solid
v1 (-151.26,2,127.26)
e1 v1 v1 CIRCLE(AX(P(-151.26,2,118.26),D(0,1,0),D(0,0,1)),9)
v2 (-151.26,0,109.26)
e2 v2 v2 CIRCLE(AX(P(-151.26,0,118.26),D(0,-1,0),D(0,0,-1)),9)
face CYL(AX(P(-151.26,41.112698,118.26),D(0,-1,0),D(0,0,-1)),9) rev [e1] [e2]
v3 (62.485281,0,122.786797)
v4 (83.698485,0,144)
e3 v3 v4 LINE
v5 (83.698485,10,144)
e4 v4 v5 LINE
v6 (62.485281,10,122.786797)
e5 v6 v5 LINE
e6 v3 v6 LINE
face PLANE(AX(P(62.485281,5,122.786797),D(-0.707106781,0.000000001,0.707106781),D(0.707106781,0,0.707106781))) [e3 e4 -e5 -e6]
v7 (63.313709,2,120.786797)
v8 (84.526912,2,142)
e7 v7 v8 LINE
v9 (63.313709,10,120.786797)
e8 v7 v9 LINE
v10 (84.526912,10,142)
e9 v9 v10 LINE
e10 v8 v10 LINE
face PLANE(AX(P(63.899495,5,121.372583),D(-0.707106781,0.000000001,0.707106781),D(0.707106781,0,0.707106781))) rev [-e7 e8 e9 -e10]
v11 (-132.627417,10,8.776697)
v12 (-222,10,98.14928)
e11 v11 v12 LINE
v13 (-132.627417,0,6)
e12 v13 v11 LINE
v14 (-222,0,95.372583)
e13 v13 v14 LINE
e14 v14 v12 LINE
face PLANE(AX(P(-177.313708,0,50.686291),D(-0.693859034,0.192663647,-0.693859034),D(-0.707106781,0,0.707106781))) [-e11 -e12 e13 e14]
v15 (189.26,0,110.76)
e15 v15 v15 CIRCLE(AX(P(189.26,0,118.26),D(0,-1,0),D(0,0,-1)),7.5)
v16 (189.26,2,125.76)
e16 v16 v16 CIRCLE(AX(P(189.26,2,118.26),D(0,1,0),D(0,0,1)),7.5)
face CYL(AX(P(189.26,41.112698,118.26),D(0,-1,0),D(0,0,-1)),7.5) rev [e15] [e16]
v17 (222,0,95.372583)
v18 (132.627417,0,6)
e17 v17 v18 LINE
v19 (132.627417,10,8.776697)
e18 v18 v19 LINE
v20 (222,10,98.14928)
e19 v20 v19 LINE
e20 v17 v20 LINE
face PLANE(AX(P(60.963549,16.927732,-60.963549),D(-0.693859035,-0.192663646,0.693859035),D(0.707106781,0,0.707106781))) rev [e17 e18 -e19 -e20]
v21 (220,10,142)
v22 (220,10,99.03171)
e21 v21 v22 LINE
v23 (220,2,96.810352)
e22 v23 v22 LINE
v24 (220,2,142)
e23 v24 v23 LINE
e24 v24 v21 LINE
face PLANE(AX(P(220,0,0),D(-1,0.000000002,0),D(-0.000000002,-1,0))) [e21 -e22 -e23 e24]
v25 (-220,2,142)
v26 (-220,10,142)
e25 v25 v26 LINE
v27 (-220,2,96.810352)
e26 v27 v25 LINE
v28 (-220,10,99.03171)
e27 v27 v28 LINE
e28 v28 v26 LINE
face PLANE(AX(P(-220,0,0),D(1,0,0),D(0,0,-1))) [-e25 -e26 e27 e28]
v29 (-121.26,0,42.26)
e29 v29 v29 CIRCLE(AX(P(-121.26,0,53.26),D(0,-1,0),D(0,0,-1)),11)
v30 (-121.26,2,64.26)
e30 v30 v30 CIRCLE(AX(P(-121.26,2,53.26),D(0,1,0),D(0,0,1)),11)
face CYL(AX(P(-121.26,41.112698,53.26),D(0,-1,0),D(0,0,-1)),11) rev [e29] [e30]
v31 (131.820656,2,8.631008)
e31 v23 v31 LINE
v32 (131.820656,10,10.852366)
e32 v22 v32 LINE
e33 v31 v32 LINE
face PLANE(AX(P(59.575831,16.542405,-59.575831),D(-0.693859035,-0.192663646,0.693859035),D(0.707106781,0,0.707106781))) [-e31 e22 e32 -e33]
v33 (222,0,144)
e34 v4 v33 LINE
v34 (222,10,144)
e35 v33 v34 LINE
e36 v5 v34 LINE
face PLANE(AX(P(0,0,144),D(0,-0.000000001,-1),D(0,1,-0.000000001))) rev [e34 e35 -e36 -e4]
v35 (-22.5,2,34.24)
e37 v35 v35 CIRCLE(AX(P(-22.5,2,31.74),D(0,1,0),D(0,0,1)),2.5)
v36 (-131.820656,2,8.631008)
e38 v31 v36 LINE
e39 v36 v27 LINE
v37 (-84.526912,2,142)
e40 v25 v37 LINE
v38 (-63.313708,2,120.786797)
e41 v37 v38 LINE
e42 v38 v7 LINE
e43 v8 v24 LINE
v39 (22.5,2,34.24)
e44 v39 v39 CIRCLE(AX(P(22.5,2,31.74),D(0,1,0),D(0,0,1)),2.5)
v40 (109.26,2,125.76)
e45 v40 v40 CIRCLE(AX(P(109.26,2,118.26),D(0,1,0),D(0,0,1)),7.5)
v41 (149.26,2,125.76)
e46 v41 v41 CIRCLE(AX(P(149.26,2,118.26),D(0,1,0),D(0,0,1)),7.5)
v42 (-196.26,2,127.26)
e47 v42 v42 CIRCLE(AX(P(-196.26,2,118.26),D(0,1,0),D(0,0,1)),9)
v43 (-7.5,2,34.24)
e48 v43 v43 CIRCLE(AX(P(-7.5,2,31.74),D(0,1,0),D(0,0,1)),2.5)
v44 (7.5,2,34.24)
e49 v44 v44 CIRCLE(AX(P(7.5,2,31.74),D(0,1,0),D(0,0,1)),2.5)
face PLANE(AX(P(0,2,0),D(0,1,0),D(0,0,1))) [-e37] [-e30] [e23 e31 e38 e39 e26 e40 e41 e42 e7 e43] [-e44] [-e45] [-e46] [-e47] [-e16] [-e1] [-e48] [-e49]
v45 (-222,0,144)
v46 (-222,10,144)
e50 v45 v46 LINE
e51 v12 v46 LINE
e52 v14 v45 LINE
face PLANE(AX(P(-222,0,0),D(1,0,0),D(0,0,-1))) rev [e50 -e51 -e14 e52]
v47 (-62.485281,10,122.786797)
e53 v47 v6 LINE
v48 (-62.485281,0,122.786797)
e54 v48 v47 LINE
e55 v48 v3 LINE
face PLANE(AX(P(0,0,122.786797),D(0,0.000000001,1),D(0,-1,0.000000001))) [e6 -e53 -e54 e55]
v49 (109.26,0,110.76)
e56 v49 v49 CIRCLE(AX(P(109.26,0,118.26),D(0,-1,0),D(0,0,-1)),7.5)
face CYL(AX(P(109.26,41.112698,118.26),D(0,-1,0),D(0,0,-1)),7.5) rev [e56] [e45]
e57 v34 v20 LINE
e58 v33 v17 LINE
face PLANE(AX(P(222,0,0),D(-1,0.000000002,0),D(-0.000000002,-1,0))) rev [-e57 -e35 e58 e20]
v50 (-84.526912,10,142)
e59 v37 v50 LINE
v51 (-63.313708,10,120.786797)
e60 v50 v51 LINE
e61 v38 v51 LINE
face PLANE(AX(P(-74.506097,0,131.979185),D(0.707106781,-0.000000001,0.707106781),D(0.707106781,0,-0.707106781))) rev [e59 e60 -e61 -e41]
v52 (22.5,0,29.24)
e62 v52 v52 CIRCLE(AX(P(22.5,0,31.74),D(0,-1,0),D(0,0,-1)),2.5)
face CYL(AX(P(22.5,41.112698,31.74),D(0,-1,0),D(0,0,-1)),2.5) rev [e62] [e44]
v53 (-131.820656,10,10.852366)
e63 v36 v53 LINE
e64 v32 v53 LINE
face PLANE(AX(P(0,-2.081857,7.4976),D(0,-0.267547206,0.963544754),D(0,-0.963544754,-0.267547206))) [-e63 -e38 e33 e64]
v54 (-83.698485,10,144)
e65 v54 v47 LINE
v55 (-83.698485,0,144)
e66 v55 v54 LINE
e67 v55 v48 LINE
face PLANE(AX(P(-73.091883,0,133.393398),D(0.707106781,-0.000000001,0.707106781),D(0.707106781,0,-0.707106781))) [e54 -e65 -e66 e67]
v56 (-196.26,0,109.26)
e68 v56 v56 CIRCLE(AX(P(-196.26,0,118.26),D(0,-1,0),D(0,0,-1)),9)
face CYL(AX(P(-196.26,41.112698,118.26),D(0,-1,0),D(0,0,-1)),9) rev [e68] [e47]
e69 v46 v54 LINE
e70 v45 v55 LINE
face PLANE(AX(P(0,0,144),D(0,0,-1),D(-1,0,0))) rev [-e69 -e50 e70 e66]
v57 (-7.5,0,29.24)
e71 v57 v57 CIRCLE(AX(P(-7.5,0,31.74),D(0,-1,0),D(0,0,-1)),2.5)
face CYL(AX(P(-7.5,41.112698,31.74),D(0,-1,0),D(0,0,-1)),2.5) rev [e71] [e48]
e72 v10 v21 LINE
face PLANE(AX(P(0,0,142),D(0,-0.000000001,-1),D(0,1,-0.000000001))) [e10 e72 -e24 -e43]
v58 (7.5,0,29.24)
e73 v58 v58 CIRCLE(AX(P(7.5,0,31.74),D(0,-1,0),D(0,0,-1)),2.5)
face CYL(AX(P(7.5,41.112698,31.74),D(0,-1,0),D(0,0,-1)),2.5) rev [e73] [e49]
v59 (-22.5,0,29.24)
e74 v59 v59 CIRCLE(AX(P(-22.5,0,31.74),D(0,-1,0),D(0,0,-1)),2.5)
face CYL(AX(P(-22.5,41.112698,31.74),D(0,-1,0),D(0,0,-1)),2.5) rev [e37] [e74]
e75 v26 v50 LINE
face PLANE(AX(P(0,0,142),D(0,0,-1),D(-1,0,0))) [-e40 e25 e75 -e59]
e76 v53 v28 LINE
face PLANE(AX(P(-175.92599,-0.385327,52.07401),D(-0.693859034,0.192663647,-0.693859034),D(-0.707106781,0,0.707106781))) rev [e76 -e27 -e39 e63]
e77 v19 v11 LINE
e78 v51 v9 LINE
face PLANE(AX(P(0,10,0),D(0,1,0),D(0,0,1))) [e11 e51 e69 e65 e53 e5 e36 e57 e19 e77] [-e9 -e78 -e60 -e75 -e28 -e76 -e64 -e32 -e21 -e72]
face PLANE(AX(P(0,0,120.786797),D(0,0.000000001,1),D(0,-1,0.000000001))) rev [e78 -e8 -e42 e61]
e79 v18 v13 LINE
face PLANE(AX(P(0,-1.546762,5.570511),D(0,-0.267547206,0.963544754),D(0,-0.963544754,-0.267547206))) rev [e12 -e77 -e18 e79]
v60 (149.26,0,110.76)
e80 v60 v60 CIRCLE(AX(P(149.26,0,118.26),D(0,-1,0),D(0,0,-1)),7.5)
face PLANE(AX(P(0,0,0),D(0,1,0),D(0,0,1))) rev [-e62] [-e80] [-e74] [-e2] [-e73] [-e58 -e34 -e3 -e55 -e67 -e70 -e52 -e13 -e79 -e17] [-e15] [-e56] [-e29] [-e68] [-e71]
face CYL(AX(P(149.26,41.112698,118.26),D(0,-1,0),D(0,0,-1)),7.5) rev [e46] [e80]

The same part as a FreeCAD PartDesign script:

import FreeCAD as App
import Part
import Sketcher

V = App.Vector


def faces_at(feature, points):
    """Names of the faces that lie closest to the given points."""
    faces = feature.Shape.Faces
    near = lambda p: min(range(len(faces)), key=lambda i: faces[i].distToShape(Part.Vertex(*p))[0])
    return sorted({f"Face{near(p) + 1}" for p in points})

doc = App.newDocument("Part")
body = doc.addObject("PartDesign::Body", "Body")

# Sketch on XZ plane
sketch1 = body.newObject("Sketcher::SketchObject", "Sketch")
sketch1.AttachmentSupport = (doc.getObject("XZ_Plane"), [""])
sketch1.MapMode = "FlatFace"
sketch1.addGeometry([
    Part.LineSegment(V(132.627417, 6, 0), V(-132.627417, 6, 0)),  # 0
    Part.LineSegment(V(-132.627417, 6, 0), V(-222, 95.372583, 0)),  # 1
    Part.LineSegment(V(-222, 95.372583, 0), V(-222, 144, 0)),  # 2
    Part.LineSegment(V(-222, 144, 0), V(-83.698485, 144, 0)),  # 3
    Part.LineSegment(V(-83.698485, 144, 0), V(-62.485281, 122.786797, 0)),  # 4
    Part.LineSegment(V(-62.485281, 122.786797, 0), V(62.485281, 122.786797, 0)),  # 5
    Part.LineSegment(V(62.485281, 122.786797, 0), V(83.698485, 144, 0)),  # 6
    Part.LineSegment(V(83.698485, 144, 0), V(222, 144, 0)),  # 7
    Part.LineSegment(V(222, 144, 0), V(222, 95.372583, 0)),  # 8
    Part.LineSegment(V(222, 95.372583, 0), V(132.627417, 6, 0)),  # 9
], False)
sketch1.addConstraint([
    Sketcher.Constraint("Coincident", 0, 2, 1, 1),
    Sketcher.Constraint("Coincident", 1, 2, 2, 1),
    Sketcher.Constraint("Coincident", 2, 2, 3, 1),
    Sketcher.Constraint("Coincident", 3, 2, 4, 1),
    Sketcher.Constraint("Coincident", 4, 2, 5, 1),
    Sketcher.Constraint("Coincident", 5, 2, 6, 1),
    Sketcher.Constraint("Coincident", 6, 2, 7, 1),
    Sketcher.Constraint("Coincident", 7, 2, 8, 1),
    Sketcher.Constraint("Coincident", 8, 2, 9, 1),
    Sketcher.Constraint("Coincident", 9, 2, 0, 1),
    Sketcher.Constraint("Horizontal", 0),
    Sketcher.Constraint("Vertical", 2),
    Sketcher.Constraint("Horizontal", 3),
    Sketcher.Constraint("Horizontal", 5),
    Sketcher.Constraint("Horizontal", 7),
    Sketcher.Constraint("Vertical", 8),
    Sketcher.Constraint("Symmetric", 3, 2, 6, 2, -2),
    Sketcher.Constraint("Symmetric", 1, 2, 8, 2, -2),
    Sketcher.Constraint("Parallel", 1, 4),
    Sketcher.Constraint("Perpendicular", 4, 6),
    Sketcher.Constraint("Parallel", 6, 9),
    Sketcher.Constraint("Equal", 4, 6),
    Sketcher.Constraint("Distance", 4, 30.0),
    Sketcher.Constraint("DistanceY", -1, 1, 0, 2, 6.0),
    Sketcher.Constraint("DistanceX", 1, 2, -1, 1, 222.0),
    Sketcher.Constraint("DistanceY", -1, 1, 2, 2, 144.0),
    Sketcher.Constraint("DistanceX", 0, 2, 5, 2, 195.112698),
    Sketcher.Constraint("Distance", 1, 126.391919),
])

# Sketch on XZ plane
sketch2 = body.newObject("Sketcher::SketchObject", "Sketch001")
sketch2.AttachmentSupport = (doc.getObject("XZ_Plane"), [""])
sketch2.MapMode = "FlatFace"
sketch2.AttachmentOffset = App.Placement(V(0, 0, -10), App.Rotation())
sketch2.addGeometry([
    Part.LineSegment(V(-83.698485, 144, 0), V(-62.485281, 122.786797, 0)),  # 0
    Part.LineSegment(V(-62.485281, 122.786797, 0), V(62.485281, 122.786797, 0)),  # 1
    Part.LineSegment(V(62.485281, 122.786797, 0), V(83.698485, 144, 0)),  # 2
    Part.LineSegment(V(83.698485, 144, 0), V(222, 144, 0)),  # 3
    Part.LineSegment(V(222, 144, 0), V(222, 98.14928, 0)),  # 4
    Part.LineSegment(V(222, 98.14928, 0), V(132.627417, 8.776697, 0)),  # 5
    Part.LineSegment(V(132.627417, 8.776697, 0), V(-132.627417, 8.776697, 0)),  # 6
    Part.LineSegment(V(-132.627417, 8.776697, 0), V(-222, 98.14928, 0)),  # 7
    Part.LineSegment(V(-222, 98.14928, 0), V(-222, 144, 0)),  # 8
    Part.LineSegment(V(-222, 144, 0), V(-83.698485, 144, 0)),  # 9
], False)
sketch2.addConstraint([
    Sketcher.Constraint("Coincident", 0, 2, 1, 1),
    Sketcher.Constraint("Coincident", 1, 2, 2, 1),
    Sketcher.Constraint("Coincident", 2, 2, 3, 1),
    Sketcher.Constraint("Coincident", 3, 2, 4, 1),
    Sketcher.Constraint("Coincident", 4, 2, 5, 1),
    Sketcher.Constraint("Coincident", 5, 2, 6, 1),
    Sketcher.Constraint("Coincident", 6, 2, 7, 1),
    Sketcher.Constraint("Coincident", 7, 2, 8, 1),
    Sketcher.Constraint("Coincident", 8, 2, 9, 1),
    Sketcher.Constraint("Coincident", 9, 2, 0, 1),
    Sketcher.Constraint("Horizontal", 1),
    Sketcher.Constraint("Horizontal", 3),
    Sketcher.Constraint("Vertical", 4),
    Sketcher.Constraint("Horizontal", 6),
    Sketcher.Constraint("Vertical", 8),
    Sketcher.Constraint("Horizontal", 9),
    Sketcher.Constraint("Symmetric", 4, 2, 7, 2, -2),
    Sketcher.Constraint("Symmetric", 2, 2, 9, 2, -2),
    Sketcher.Constraint("Perpendicular", 0, 2),
    Sketcher.Constraint("Parallel", 2, 5),
    Sketcher.Constraint("Perpendicular", 5, 7),
    Sketcher.Constraint("Equal", 0, 2),
    Sketcher.Constraint("Distance", 0, 30.0),
    Sketcher.Constraint("DistanceY", -1, 1, 2, 2, 144.0),
    Sketcher.Constraint("DistanceX", -1, 1, 3, 2, 222.0),
    Sketcher.Constraint("DistanceY", 4, 2, 4, 1, 45.85072),
    Sketcher.Constraint("DistanceY", 5, 2, 1, 2, 114.010099),
    Sketcher.Constraint("DistanceX", 0, 2, 5, 2, 195.112698),
])

additiveloft = body.newObject("PartDesign::AdditiveLoft", "AdditiveLoft")
additiveloft.Profile = sketch1
additiveloft.Sections = [sketch2]
doc.recompute()

thickness = body.newObject("PartDesign::Thickness", "Thickness")
thickness.Base = (additiveloft, faces_at(additiveloft, [(-9.204, 10, 96.937)]))
thickness.Value = 2
thickness.Reversed = True
thickness.Join = "Intersection"

# Sketch on XZ plane
sketch3 = body.newObject("Sketcher::SketchObject", "Sketch002")
sketch3.AttachmentSupport = (doc.getObject("XZ_Plane"), [""])
sketch3.MapMode = "FlatFace"
sketch3.addGeometry([
    Part.Circle(V(22.5, 31.74, 0), V(0, 0, 1), 2.5),  # 0
    Part.Circle(V(7.5, 31.74, 0), V(0, 0, 1), 2.5),  # 1
    Part.Circle(V(-7.5, 31.74, 0), V(0, 0, 1), 2.5),  # 2
    Part.Circle(V(-22.5, 31.74, 0), V(0, 0, 1), 2.5),  # 3
    Part.Circle(V(189.26, 118.26, 0), V(0, 0, 1), 7.5),  # 4
    Part.Circle(V(149.26, 118.26, 0), V(0, 0, 1), 7.5),  # 5
    Part.Circle(V(109.26, 118.26, 0), V(0, 0, 1), 7.5),  # 6
    Part.Circle(V(-151.26, 118.26, 0), V(0, 0, 1), 9),  # 7
    Part.Circle(V(-196.26, 118.26, 0), V(0, 0, 1), 9),  # 8
    Part.Circle(V(-121.26, 53.26, 0), V(0, 0, 1), 11),  # 9
], False)
sketch3.addConstraint([
    Sketcher.Constraint("Equal", 0, 1),
    Sketcher.Constraint("Equal", 1, 2),
    Sketcher.Constraint("Equal", 2, 3),
    Sketcher.Constraint("Equal", 4, 5),
    Sketcher.Constraint("Equal", 5, 6),
    Sketcher.Constraint("Equal", 7, 8),
    Sketcher.Constraint("Symmetric", 1, 3, 2, 3, -2),
    Sketcher.Constraint("Symmetric", 0, 3, 3, 3, -2),
    Sketcher.Constraint("Horizontal", 0, 3, 1, 3),
    Sketcher.Constraint("Horizontal", 4, 3, 5, 3),
    Sketcher.Constraint("Horizontal", 5, 3, 6, 3),
    Sketcher.Constraint("Horizontal", 6, 3, 7, 3),
    Sketcher.Constraint("Horizontal", 7, 3, 8, 3),
    Sketcher.Constraint("Diameter", 0, 5.0),
    Sketcher.Constraint("Diameter", 4, 15.0),
    Sketcher.Constraint("Diameter", 7, 18.0),
    Sketcher.Constraint("Diameter", 9, 22.0),
    Sketcher.Constraint("DistanceX", 1, 3, 0, 3, 15.0),
    Sketcher.Constraint("DistanceX", 2, 3, 1, 3, 15.0),
    Sketcher.Constraint("DistanceX", 5, 3, 4, 3, 40.0),
    Sketcher.Constraint("DistanceX", 6, 3, 5, 3, 40.0),
    Sketcher.Constraint("DistanceX", 8, 3, 7, 3, 45.0),
    Sketcher.Constraint("DistanceX", 7, 3, 9, 3, 30.0),
    Sketcher.Constraint("DistanceY", 9, 3, 7, 3, 65.0),
    Sketcher.Constraint("DistanceY", -1, 1, 0, 3, 31.74),
    Sketcher.Constraint("DistanceX", -1, 1, 4, 3, 189.26),
    Sketcher.Constraint("DistanceY", -1, 1, 4, 3, 118.26),
    Sketcher.Constraint("DistanceX", 7, 3, -1, 1, 151.26),
])
pocket1 = body.newObject("PartDesign::Pocket", "Pocket")
pocket1.Profile = sketch3
pocket1.Length = 10

doc.recompute()
